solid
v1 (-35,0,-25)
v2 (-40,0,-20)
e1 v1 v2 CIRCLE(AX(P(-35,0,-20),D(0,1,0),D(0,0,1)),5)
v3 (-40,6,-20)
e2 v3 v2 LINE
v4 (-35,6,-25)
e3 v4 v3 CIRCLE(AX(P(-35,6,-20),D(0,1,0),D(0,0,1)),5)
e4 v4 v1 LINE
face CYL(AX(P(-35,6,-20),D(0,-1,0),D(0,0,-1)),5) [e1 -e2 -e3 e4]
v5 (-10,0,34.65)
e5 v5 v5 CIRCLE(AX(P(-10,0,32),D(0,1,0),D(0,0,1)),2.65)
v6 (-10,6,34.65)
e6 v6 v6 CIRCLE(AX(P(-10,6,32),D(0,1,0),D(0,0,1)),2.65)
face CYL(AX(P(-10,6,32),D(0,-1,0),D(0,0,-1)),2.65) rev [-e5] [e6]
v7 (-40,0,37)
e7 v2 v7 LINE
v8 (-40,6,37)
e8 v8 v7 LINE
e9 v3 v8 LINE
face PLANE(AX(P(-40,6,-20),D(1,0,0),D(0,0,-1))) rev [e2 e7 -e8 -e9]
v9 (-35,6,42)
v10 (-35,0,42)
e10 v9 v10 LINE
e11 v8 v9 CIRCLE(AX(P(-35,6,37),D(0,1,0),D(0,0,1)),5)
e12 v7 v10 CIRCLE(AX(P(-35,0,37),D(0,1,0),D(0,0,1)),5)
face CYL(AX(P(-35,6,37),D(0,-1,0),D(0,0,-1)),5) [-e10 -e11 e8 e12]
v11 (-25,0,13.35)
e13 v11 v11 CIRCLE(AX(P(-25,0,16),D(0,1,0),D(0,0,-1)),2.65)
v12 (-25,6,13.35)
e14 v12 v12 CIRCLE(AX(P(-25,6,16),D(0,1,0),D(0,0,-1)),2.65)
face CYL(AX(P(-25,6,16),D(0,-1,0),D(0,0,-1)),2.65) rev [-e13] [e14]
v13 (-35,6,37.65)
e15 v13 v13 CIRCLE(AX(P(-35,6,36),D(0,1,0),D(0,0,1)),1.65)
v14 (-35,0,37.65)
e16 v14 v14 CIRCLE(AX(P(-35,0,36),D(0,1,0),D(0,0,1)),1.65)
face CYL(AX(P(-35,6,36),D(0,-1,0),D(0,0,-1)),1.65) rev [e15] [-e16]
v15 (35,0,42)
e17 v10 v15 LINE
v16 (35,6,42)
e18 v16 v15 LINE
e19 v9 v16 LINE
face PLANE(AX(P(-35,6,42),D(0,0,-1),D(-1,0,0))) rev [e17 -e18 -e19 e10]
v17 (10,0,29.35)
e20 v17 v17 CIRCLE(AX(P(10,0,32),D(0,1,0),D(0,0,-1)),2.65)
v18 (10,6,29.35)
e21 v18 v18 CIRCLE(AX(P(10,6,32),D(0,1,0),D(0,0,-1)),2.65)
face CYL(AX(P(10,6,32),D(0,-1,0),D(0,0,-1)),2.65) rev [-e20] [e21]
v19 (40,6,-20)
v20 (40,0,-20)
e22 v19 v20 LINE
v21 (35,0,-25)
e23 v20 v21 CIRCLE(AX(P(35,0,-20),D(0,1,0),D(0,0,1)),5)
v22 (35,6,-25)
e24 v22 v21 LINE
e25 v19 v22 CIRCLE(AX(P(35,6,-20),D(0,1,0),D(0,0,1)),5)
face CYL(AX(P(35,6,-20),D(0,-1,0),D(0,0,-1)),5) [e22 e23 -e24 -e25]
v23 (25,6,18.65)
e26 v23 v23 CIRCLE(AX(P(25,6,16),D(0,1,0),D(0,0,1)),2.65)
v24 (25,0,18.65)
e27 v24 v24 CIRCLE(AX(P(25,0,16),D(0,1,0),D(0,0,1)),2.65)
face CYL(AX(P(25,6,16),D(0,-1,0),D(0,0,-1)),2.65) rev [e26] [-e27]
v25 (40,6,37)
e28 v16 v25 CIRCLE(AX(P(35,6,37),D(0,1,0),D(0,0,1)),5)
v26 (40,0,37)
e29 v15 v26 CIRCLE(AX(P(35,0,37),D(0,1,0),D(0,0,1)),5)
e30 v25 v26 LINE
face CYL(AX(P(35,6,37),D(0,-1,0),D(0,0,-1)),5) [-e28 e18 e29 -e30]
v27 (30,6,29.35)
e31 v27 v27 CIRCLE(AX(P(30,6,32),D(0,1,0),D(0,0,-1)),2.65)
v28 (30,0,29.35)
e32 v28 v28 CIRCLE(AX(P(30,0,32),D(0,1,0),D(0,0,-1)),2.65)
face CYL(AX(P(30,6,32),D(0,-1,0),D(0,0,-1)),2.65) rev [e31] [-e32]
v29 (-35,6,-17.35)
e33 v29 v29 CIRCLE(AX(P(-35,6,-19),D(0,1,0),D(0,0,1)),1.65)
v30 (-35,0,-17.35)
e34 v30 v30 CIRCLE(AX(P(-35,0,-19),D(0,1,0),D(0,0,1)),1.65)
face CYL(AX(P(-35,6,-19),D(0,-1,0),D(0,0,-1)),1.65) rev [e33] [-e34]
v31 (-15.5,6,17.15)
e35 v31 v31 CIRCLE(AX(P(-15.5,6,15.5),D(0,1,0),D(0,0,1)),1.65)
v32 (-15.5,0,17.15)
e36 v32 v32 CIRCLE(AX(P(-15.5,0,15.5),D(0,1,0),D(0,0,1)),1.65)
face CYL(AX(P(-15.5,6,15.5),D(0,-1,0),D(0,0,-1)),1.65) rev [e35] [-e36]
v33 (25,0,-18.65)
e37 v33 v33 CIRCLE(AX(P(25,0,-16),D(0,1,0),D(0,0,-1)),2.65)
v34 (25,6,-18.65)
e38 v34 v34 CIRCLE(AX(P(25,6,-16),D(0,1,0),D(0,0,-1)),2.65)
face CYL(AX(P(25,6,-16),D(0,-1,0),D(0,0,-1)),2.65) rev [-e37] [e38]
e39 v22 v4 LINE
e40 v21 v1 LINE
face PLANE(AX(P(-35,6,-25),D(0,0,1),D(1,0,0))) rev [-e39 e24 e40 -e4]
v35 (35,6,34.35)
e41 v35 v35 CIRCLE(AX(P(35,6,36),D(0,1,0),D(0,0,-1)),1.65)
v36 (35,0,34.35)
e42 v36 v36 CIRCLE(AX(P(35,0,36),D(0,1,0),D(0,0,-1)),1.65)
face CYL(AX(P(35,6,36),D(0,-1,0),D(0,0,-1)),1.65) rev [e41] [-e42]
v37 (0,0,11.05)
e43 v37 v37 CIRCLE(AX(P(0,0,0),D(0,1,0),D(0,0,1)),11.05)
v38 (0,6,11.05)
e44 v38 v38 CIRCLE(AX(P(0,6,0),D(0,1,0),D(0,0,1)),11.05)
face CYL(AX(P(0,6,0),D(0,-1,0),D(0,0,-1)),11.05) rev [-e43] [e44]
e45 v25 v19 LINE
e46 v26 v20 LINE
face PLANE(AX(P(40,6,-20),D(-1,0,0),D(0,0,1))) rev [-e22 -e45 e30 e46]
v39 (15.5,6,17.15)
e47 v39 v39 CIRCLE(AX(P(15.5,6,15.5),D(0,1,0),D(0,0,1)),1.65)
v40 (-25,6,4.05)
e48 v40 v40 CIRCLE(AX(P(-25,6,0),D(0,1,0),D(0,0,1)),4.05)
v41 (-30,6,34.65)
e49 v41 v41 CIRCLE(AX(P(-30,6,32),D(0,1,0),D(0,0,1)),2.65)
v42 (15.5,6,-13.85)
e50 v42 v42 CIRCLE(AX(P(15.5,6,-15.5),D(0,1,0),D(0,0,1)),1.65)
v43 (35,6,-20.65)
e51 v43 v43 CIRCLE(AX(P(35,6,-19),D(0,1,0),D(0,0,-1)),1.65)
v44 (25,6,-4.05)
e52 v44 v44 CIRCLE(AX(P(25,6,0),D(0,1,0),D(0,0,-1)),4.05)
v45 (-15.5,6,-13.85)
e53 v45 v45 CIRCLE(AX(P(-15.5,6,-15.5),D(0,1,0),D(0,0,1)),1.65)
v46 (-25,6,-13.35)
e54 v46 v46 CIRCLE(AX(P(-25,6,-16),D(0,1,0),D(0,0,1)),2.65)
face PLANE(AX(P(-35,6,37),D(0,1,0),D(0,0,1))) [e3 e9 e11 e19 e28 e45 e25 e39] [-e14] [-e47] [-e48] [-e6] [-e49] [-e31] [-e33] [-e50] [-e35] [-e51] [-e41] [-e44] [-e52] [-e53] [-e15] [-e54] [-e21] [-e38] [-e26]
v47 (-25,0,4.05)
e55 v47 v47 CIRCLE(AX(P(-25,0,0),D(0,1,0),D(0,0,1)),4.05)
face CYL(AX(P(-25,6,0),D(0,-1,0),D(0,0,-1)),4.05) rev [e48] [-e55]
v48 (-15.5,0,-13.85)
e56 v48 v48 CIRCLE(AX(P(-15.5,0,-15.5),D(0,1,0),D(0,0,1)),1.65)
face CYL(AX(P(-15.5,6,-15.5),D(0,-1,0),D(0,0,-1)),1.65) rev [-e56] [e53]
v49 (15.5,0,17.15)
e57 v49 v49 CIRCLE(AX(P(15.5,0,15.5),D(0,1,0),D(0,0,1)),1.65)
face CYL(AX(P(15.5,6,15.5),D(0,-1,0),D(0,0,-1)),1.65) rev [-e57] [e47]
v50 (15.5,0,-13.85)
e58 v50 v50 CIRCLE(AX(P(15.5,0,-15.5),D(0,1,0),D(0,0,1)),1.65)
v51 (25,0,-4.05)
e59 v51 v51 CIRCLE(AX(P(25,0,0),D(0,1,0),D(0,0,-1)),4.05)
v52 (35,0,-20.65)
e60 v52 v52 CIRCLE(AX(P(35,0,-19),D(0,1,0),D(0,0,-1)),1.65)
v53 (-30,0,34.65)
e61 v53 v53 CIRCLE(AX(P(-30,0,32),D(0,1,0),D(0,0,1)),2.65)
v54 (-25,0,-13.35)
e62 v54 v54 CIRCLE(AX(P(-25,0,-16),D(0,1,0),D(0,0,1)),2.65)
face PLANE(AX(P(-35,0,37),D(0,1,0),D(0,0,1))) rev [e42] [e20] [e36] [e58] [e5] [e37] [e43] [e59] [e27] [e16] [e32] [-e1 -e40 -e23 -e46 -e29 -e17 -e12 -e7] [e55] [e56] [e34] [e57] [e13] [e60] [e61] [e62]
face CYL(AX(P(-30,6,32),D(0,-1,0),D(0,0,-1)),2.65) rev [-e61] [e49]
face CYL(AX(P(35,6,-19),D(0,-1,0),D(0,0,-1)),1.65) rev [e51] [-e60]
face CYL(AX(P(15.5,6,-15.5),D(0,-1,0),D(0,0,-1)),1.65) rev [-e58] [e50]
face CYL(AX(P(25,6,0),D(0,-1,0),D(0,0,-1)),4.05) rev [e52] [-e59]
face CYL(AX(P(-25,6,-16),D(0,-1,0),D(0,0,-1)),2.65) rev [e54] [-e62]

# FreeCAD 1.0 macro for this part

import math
import FreeCAD as App
import Part
import Sketcher
Q = App.Units.Quantity

doc = App.newDocument("Part")
params = doc.addObject("Spreadsheet::Sheet", "Params")
for row, (alias, value) in enumerate([
    ("sketch1_radius", "5 mm"),
    ("sketch1_diameter", "3.3 mm"),
    ("sketch1_diameter2", "5.3 mm"),
    ("sketch1_diameter3", "8.1 mm"),
    ("sketch1_diameter4", "22.1 mm"),
    ("pad1_length", "6 mm"),
], start=1):
    params.set(f"A{row}", alias)
    params.set(f"B{row}", "=" + value)
    params.setAlias(f"B{row}", alias)

body = doc.addObject("PartDesign::Body", "Body")

# Sketch on XZ plane
sketch1 = doc.addObject("Sketcher::SketchObject", "Sketch")
body.addObject(sketch1)
sketch1.AttachmentSupport = (doc.XZ_Plane, [""])
sketch1.MapMode = "FlatFace"
sketch1.addGeometry([
    Part.LineSegment(App.Vector(-35, 42, 0), App.Vector(35, 42, 0)),  # 0
    Part.ArcOfCircle(Part.Circle(App.Vector(35, 37, 0), App.Vector(0, 0, 1), 5), math.radians(0), math.radians(90)),  # 1
    Part.LineSegment(App.Vector(40, 37, 0), App.Vector(40, -20, 0)),  # 2
    Part.ArcOfCircle(Part.Circle(App.Vector(35, -20, 0), App.Vector(0, 0, 1), 5), math.radians(-90), math.radians(0)),  # 3
    Part.LineSegment(App.Vector(35, -25, 0), App.Vector(-35, -25, 0)),  # 4
    Part.ArcOfCircle(Part.Circle(App.Vector(-35, -20, 0), App.Vector(0, 0, 1), 5), math.radians(180), math.radians(270)),  # 5
    Part.LineSegment(App.Vector(-40, -20, 0), App.Vector(-40, 37, 0)),  # 6
    Part.ArcOfCircle(Part.Circle(App.Vector(-35, 37, 0), App.Vector(0, 0, 1), 5), math.radians(90), math.radians(180)),  # 7
    Part.Circle(App.Vector(-35, 36, 0), App.Vector(0, 0, 1), 1.6),  # 8
    Part.Circle(App.Vector(-30, 32, 0), App.Vector(0, 0, 1), 2.6),  # 9
    Part.Circle(App.Vector(-10, 32, 0), App.Vector(0, 0, 1), 2.6),  # 10
    Part.Circle(App.Vector(-25, 16, 0), App.Vector(0, 0, 1), 2.6),  # 11
    Part.Circle(App.Vector(-15.5, 15.5, 0), App.Vector(0, 0, 1), 1.6),  # 12
    Part.Circle(App.Vector(10, 32, 0), App.Vector(0, 0, 1), 2.6),  # 13
    Part.Circle(App.Vector(35, 36, 0), App.Vector(0, 0, 1), 1.6),  # 14
    Part.Circle(App.Vector(30, 32, 0), App.Vector(0, 0, 1), 2.6),  # 15
    Part.Circle(App.Vector(15.5, 15.5, 0), App.Vector(0, 0, 1), 1.6),  # 16
    Part.Circle(App.Vector(25, 16, 0), App.Vector(0, 0, 1), 2.6),  # 17
    Part.Circle(App.Vector(-25, 0, 0), App.Vector(0, 0, 1), 4),  # 18
    Part.Circle(App.Vector(-35, -19, 0), App.Vector(0, 0, 1), 1.6),  # 19
    Part.Circle(App.Vector(-25, -16, 0), App.Vector(0, 0, 1), 2.6),  # 20
    Part.Circle(App.Vector(-15.5, -15.5, 0), App.Vector(0, 0, 1), 1.6),  # 21
    Part.Circle(App.Vector(0, 0, 0), App.Vector(0, 0, 1), 11.1),  # 22
    Part.Circle(App.Vector(25, 0, 0), App.Vector(0, 0, 1), 4),  # 23
    Part.Circle(App.Vector(15.5, -15.5, 0), App.Vector(0, 0, 1), 1.6),  # 24
    Part.Circle(App.Vector(25, -16, 0), App.Vector(0, 0, 1), 2.6),  # 25
    Part.Circle(App.Vector(35, -19, 0), App.Vector(0, 0, 1), 1.6),  # 26
], False)
sketch1.addConstraint([
    Sketcher.Constraint("Tangent", 0, 2, 1, 2),
    Sketcher.Constraint("Tangent", 1, 1, 2, 1),
    Sketcher.Constraint("Tangent", 2, 2, 3, 2),
    Sketcher.Constraint("Tangent", 3, 1, 4, 1),
    Sketcher.Constraint("Tangent", 4, 2, 5, 2),
    Sketcher.Constraint("Tangent", 5, 1, 6, 1),
    Sketcher.Constraint("Tangent", 6, 2, 7, 2),
    Sketcher.Constraint("Tangent", 7, 1, 0, 1),
    Sketcher.Constraint("Horizontal", 0),
    Sketcher.Constraint("Vertical", 2),
    Sketcher.Constraint("Horizontal", 4),
    Sketcher.Constraint("Vertical", 6),
    Sketcher.Constraint("Coincident", 22, 3, -1, 1),
    Sketcher.Constraint("Equal", 1, 3),
    Sketcher.Constraint("Equal", 3, 5),
    Sketcher.Constraint("Equal", 5, 7),
    Sketcher.Constraint("Equal", 9, 10),
    Sketcher.Constraint("Equal", 10, 11),
    Sketcher.Constraint("Equal", 8, 12),
    Sketcher.Constraint("Equal", 11, 13),
    Sketcher.Constraint("Equal", 12, 14),
    Sketcher.Constraint("Equal", 13, 15),
    Sketcher.Constraint("Equal", 14, 16),
    Sketcher.Constraint("Equal", 15, 17),
    Sketcher.Constraint("Equal", 16, 19),
    Sketcher.Constraint("Equal", 17, 20),
    Sketcher.Constraint("Equal", 19, 21),
    Sketcher.Constraint("Equal", 18, 23),
    Sketcher.Constraint("Equal", 21, 24),
    Sketcher.Constraint("Equal", 20, 25),
    Sketcher.Constraint("Equal", 24, 26),
    Sketcher.Constraint("Symmetric", 17, 3, 20, 3, -1, 1),
    Sketcher.Constraint("Symmetric", 16, 3, 21, 3, -1, 1),
    Sketcher.Constraint("Symmetric", 18, 3, 23, 3, -1, 1),
    Sketcher.Constraint("Symmetric", 12, 3, 24, 3, -1, 1),
    Sketcher.Constraint("Symmetric", 11, 3, 25, 3, -1, 1),
    Sketcher.Constraint("Symmetric", 10, 3, 13, 3, -2),
    Sketcher.Constraint("Symmetric", 8, 3, 14, 3, -2),
    Sketcher.Constraint("Symmetric", 9, 3, 15, 3, -2),
    Sketcher.Constraint("Symmetric", 12, 3, 16, 3, -2),
    Sketcher.Constraint("Symmetric", 11, 3, 17, 3, -2),
    Sketcher.Constraint("Symmetric", 19, 3, 26, 3, -2),
    Sketcher.Constraint("PointOnObject", 18, 3, -1),
    Sketcher.Constraint("Horizontal", 9, 3, 10, 3),
    Sketcher.Constraint("Vertical", 7, 3, 8, 3),
    Sketcher.Constraint("Vertical", 3, 3, 14, 3),
    Sketcher.Constraint("Vertical", 11, 3, 18, 3),
    Sketcher.Constraint("Vertical", 8, 3, 19, 3),
    Sketcher.Constraint("Radius", 1, Q("5 mm")),
    Sketcher.Constraint("Diameter", 8, Q("3.3 mm")),
    Sketcher.Constraint("Diameter", 9, Q("5.3 mm")),
    Sketcher.Constraint("Diameter", 18, Q("8.1 mm")),
    Sketcher.Constraint("Diameter", 22, Q("22.1 mm")),
    Sketcher.Constraint("DistanceX", 0, 1, 0, 2, Q("70 mm")),
    Sketcher.Constraint("DistanceY", 2, 2, 2, 1, Q("57 mm")),
    Sketcher.Constraint("DistanceY", -1, 1, 1, 3, Q("37 mm")),
    Sketcher.Constraint("DistanceY", -1, 1, 8, 3, Q("36 mm")),
    Sketcher.Constraint("DistanceX", 9, 3, -1, 1, Q("30 mm")),
    Sketcher.Constraint("DistanceY", -1, 1, 9, 3, Q("32 mm")),
    Sketcher.Constraint("DistanceX", 10, 3, -1, 1, Q("10 mm")),
    Sketcher.Constraint("DistanceX", 11, 3, -1, 1, Q("25 mm")),
    Sketcher.Constraint("DistanceY", -1, 1, 11, 3, Q("16 mm")),
    Sketcher.Constraint("DistanceY", 19, 3, -1, 1, Q("19 mm")),
    Sketcher.Constraint("DistanceY", 21, 3, 12, 3, Q("31 mm")),
    Sketcher.Constraint("DistanceX", 21, 3, 24, 3, Q("31 mm")),
])
sketch1.setExpression("Constraints[48]", "Params.sketch1_radius")
sketch1.setExpression("Constraints[49]", "Params.sketch1_diameter")
sketch1.setExpression("Constraints[50]", "Params.sketch1_diameter2")
sketch1.setExpression("Constraints[51]", "Params.sketch1_diameter3")
sketch1.setExpression("Constraints[52]", "Params.sketch1_diameter4")
pad1 = doc.addObject("PartDesign::Pad", "Pad")
body.addObject(pad1)
pad1.Profile = sketch1
pad1.setExpression("Length", "Params.pad1_length")
pad1.Reversed = True

doc.recompute()
